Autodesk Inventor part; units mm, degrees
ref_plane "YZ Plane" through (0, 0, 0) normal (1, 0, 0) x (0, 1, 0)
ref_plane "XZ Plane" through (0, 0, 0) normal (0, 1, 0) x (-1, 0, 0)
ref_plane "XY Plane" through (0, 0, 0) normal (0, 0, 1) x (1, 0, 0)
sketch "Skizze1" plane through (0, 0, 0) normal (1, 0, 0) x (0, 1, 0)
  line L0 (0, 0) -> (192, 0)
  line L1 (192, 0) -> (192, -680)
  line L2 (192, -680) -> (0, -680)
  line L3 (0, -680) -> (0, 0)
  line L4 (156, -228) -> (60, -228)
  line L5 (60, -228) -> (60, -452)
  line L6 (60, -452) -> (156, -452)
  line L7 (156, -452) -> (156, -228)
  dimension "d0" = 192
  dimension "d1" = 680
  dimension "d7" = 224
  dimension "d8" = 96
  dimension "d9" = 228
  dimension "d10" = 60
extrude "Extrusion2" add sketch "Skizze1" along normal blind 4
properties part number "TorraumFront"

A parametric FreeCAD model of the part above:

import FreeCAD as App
import Part
import Sketcher
Q = App.Units.Quantity


def add_polygon(sketch, points):
    """Adds a closed chain of lines whose ends are joined by coincident constraints."""
    first, n = sketch.GeometryCount, len(points)
    for a, b in zip(points, points[1:] + points[:1]):
        sketch.addGeometry(Part.LineSegment(App.Vector(*a, 0), App.Vector(*b, 0)), False)
    for i in range(n):
        sketch.addConstraint(Sketcher.Constraint("Coincident", first + i, 2, first + (i + 1) % n, 1))

doc = App.newDocument("Part")
params = doc.addObject("Spreadsheet::Sheet", "Params")
for row, (alias, value) in enumerate([
    ("sketch1_width", "192 mm"),
    ("sketch1_width2", "96 mm"),
    ("sketch1_height", "680 mm"),
    ("sketch1_height2", "224 mm"),
    ("pad1_length", "4 mm"),
], start=1):
    params.set(f"A{row}", alias)
    params.set(f"B{row}", "=" + value)
    params.setAlias(f"B{row}", alias)

body = doc.addObject("PartDesign::Body", "Body")

# Sketch on YZ plane
sketch1 = doc.addObject("Sketcher::SketchObject", "Sketch")
body.addObject(sketch1)
sketch1.AttachmentSupport = (doc.YZ_Plane, [""])
sketch1.MapMode = "FlatFace"
add_polygon(sketch1, [(192, 0), (0, 0), (0, -680), (192, -680)])  # lines 0-3
add_polygon(sketch1, [(60, -228), (156, -228), (156, -452), (60, -452)])  # lines 4-7
sketch1.addConstraint([
    Sketcher.Constraint("Horizontal", 0),
    Sketcher.Constraint("Vertical", 1),
    Sketcher.Constraint("Horizontal", 2),
    Sketcher.Constraint("Vertical", 3),
    Sketcher.Constraint("Horizontal", 4),
    Sketcher.Constraint("Vertical", 5),
    Sketcher.Constraint("Horizontal", 6),
    Sketcher.Constraint("Vertical", 7),
    Sketcher.Constraint("Coincident", 0, 2, -1, 1),
    Sketcher.Constraint("DistanceX", 0, 2, 0, 1, Q("192 mm")),
    Sketcher.Constraint("DistanceX", 4, 1, 4, 2, Q("96 mm")),
    Sketcher.Constraint("DistanceY", 1, 2, 1, 1, Q("680 mm")),
    Sketcher.Constraint("DistanceY", 5, 2, 5, 1, Q("224 mm")),
    Sketcher.Constraint("DistanceY", 4, 2, -1, 1, Q("228 mm")),
    Sketcher.Constraint("DistanceX", -1, 1, 6, 2, Q("60 mm")),
])
sketch1.setExpression("Constraints[17]", "Params.sketch1_width")
sketch1.setExpression("Constraints[18]", "Params.sketch1_width2")
sketch1.setExpression("Constraints[19]", "Params.sketch1_height")
sketch1.setExpression("Constraints[20]", "Params.sketch1_height2")
pad1 = doc.addObject("PartDesign::Pad", "Pad")
body.addObject(pad1)
pad1.Profile = sketch1
pad1.setExpression("Length", "Params.pad1_length")

doc.recompute()
